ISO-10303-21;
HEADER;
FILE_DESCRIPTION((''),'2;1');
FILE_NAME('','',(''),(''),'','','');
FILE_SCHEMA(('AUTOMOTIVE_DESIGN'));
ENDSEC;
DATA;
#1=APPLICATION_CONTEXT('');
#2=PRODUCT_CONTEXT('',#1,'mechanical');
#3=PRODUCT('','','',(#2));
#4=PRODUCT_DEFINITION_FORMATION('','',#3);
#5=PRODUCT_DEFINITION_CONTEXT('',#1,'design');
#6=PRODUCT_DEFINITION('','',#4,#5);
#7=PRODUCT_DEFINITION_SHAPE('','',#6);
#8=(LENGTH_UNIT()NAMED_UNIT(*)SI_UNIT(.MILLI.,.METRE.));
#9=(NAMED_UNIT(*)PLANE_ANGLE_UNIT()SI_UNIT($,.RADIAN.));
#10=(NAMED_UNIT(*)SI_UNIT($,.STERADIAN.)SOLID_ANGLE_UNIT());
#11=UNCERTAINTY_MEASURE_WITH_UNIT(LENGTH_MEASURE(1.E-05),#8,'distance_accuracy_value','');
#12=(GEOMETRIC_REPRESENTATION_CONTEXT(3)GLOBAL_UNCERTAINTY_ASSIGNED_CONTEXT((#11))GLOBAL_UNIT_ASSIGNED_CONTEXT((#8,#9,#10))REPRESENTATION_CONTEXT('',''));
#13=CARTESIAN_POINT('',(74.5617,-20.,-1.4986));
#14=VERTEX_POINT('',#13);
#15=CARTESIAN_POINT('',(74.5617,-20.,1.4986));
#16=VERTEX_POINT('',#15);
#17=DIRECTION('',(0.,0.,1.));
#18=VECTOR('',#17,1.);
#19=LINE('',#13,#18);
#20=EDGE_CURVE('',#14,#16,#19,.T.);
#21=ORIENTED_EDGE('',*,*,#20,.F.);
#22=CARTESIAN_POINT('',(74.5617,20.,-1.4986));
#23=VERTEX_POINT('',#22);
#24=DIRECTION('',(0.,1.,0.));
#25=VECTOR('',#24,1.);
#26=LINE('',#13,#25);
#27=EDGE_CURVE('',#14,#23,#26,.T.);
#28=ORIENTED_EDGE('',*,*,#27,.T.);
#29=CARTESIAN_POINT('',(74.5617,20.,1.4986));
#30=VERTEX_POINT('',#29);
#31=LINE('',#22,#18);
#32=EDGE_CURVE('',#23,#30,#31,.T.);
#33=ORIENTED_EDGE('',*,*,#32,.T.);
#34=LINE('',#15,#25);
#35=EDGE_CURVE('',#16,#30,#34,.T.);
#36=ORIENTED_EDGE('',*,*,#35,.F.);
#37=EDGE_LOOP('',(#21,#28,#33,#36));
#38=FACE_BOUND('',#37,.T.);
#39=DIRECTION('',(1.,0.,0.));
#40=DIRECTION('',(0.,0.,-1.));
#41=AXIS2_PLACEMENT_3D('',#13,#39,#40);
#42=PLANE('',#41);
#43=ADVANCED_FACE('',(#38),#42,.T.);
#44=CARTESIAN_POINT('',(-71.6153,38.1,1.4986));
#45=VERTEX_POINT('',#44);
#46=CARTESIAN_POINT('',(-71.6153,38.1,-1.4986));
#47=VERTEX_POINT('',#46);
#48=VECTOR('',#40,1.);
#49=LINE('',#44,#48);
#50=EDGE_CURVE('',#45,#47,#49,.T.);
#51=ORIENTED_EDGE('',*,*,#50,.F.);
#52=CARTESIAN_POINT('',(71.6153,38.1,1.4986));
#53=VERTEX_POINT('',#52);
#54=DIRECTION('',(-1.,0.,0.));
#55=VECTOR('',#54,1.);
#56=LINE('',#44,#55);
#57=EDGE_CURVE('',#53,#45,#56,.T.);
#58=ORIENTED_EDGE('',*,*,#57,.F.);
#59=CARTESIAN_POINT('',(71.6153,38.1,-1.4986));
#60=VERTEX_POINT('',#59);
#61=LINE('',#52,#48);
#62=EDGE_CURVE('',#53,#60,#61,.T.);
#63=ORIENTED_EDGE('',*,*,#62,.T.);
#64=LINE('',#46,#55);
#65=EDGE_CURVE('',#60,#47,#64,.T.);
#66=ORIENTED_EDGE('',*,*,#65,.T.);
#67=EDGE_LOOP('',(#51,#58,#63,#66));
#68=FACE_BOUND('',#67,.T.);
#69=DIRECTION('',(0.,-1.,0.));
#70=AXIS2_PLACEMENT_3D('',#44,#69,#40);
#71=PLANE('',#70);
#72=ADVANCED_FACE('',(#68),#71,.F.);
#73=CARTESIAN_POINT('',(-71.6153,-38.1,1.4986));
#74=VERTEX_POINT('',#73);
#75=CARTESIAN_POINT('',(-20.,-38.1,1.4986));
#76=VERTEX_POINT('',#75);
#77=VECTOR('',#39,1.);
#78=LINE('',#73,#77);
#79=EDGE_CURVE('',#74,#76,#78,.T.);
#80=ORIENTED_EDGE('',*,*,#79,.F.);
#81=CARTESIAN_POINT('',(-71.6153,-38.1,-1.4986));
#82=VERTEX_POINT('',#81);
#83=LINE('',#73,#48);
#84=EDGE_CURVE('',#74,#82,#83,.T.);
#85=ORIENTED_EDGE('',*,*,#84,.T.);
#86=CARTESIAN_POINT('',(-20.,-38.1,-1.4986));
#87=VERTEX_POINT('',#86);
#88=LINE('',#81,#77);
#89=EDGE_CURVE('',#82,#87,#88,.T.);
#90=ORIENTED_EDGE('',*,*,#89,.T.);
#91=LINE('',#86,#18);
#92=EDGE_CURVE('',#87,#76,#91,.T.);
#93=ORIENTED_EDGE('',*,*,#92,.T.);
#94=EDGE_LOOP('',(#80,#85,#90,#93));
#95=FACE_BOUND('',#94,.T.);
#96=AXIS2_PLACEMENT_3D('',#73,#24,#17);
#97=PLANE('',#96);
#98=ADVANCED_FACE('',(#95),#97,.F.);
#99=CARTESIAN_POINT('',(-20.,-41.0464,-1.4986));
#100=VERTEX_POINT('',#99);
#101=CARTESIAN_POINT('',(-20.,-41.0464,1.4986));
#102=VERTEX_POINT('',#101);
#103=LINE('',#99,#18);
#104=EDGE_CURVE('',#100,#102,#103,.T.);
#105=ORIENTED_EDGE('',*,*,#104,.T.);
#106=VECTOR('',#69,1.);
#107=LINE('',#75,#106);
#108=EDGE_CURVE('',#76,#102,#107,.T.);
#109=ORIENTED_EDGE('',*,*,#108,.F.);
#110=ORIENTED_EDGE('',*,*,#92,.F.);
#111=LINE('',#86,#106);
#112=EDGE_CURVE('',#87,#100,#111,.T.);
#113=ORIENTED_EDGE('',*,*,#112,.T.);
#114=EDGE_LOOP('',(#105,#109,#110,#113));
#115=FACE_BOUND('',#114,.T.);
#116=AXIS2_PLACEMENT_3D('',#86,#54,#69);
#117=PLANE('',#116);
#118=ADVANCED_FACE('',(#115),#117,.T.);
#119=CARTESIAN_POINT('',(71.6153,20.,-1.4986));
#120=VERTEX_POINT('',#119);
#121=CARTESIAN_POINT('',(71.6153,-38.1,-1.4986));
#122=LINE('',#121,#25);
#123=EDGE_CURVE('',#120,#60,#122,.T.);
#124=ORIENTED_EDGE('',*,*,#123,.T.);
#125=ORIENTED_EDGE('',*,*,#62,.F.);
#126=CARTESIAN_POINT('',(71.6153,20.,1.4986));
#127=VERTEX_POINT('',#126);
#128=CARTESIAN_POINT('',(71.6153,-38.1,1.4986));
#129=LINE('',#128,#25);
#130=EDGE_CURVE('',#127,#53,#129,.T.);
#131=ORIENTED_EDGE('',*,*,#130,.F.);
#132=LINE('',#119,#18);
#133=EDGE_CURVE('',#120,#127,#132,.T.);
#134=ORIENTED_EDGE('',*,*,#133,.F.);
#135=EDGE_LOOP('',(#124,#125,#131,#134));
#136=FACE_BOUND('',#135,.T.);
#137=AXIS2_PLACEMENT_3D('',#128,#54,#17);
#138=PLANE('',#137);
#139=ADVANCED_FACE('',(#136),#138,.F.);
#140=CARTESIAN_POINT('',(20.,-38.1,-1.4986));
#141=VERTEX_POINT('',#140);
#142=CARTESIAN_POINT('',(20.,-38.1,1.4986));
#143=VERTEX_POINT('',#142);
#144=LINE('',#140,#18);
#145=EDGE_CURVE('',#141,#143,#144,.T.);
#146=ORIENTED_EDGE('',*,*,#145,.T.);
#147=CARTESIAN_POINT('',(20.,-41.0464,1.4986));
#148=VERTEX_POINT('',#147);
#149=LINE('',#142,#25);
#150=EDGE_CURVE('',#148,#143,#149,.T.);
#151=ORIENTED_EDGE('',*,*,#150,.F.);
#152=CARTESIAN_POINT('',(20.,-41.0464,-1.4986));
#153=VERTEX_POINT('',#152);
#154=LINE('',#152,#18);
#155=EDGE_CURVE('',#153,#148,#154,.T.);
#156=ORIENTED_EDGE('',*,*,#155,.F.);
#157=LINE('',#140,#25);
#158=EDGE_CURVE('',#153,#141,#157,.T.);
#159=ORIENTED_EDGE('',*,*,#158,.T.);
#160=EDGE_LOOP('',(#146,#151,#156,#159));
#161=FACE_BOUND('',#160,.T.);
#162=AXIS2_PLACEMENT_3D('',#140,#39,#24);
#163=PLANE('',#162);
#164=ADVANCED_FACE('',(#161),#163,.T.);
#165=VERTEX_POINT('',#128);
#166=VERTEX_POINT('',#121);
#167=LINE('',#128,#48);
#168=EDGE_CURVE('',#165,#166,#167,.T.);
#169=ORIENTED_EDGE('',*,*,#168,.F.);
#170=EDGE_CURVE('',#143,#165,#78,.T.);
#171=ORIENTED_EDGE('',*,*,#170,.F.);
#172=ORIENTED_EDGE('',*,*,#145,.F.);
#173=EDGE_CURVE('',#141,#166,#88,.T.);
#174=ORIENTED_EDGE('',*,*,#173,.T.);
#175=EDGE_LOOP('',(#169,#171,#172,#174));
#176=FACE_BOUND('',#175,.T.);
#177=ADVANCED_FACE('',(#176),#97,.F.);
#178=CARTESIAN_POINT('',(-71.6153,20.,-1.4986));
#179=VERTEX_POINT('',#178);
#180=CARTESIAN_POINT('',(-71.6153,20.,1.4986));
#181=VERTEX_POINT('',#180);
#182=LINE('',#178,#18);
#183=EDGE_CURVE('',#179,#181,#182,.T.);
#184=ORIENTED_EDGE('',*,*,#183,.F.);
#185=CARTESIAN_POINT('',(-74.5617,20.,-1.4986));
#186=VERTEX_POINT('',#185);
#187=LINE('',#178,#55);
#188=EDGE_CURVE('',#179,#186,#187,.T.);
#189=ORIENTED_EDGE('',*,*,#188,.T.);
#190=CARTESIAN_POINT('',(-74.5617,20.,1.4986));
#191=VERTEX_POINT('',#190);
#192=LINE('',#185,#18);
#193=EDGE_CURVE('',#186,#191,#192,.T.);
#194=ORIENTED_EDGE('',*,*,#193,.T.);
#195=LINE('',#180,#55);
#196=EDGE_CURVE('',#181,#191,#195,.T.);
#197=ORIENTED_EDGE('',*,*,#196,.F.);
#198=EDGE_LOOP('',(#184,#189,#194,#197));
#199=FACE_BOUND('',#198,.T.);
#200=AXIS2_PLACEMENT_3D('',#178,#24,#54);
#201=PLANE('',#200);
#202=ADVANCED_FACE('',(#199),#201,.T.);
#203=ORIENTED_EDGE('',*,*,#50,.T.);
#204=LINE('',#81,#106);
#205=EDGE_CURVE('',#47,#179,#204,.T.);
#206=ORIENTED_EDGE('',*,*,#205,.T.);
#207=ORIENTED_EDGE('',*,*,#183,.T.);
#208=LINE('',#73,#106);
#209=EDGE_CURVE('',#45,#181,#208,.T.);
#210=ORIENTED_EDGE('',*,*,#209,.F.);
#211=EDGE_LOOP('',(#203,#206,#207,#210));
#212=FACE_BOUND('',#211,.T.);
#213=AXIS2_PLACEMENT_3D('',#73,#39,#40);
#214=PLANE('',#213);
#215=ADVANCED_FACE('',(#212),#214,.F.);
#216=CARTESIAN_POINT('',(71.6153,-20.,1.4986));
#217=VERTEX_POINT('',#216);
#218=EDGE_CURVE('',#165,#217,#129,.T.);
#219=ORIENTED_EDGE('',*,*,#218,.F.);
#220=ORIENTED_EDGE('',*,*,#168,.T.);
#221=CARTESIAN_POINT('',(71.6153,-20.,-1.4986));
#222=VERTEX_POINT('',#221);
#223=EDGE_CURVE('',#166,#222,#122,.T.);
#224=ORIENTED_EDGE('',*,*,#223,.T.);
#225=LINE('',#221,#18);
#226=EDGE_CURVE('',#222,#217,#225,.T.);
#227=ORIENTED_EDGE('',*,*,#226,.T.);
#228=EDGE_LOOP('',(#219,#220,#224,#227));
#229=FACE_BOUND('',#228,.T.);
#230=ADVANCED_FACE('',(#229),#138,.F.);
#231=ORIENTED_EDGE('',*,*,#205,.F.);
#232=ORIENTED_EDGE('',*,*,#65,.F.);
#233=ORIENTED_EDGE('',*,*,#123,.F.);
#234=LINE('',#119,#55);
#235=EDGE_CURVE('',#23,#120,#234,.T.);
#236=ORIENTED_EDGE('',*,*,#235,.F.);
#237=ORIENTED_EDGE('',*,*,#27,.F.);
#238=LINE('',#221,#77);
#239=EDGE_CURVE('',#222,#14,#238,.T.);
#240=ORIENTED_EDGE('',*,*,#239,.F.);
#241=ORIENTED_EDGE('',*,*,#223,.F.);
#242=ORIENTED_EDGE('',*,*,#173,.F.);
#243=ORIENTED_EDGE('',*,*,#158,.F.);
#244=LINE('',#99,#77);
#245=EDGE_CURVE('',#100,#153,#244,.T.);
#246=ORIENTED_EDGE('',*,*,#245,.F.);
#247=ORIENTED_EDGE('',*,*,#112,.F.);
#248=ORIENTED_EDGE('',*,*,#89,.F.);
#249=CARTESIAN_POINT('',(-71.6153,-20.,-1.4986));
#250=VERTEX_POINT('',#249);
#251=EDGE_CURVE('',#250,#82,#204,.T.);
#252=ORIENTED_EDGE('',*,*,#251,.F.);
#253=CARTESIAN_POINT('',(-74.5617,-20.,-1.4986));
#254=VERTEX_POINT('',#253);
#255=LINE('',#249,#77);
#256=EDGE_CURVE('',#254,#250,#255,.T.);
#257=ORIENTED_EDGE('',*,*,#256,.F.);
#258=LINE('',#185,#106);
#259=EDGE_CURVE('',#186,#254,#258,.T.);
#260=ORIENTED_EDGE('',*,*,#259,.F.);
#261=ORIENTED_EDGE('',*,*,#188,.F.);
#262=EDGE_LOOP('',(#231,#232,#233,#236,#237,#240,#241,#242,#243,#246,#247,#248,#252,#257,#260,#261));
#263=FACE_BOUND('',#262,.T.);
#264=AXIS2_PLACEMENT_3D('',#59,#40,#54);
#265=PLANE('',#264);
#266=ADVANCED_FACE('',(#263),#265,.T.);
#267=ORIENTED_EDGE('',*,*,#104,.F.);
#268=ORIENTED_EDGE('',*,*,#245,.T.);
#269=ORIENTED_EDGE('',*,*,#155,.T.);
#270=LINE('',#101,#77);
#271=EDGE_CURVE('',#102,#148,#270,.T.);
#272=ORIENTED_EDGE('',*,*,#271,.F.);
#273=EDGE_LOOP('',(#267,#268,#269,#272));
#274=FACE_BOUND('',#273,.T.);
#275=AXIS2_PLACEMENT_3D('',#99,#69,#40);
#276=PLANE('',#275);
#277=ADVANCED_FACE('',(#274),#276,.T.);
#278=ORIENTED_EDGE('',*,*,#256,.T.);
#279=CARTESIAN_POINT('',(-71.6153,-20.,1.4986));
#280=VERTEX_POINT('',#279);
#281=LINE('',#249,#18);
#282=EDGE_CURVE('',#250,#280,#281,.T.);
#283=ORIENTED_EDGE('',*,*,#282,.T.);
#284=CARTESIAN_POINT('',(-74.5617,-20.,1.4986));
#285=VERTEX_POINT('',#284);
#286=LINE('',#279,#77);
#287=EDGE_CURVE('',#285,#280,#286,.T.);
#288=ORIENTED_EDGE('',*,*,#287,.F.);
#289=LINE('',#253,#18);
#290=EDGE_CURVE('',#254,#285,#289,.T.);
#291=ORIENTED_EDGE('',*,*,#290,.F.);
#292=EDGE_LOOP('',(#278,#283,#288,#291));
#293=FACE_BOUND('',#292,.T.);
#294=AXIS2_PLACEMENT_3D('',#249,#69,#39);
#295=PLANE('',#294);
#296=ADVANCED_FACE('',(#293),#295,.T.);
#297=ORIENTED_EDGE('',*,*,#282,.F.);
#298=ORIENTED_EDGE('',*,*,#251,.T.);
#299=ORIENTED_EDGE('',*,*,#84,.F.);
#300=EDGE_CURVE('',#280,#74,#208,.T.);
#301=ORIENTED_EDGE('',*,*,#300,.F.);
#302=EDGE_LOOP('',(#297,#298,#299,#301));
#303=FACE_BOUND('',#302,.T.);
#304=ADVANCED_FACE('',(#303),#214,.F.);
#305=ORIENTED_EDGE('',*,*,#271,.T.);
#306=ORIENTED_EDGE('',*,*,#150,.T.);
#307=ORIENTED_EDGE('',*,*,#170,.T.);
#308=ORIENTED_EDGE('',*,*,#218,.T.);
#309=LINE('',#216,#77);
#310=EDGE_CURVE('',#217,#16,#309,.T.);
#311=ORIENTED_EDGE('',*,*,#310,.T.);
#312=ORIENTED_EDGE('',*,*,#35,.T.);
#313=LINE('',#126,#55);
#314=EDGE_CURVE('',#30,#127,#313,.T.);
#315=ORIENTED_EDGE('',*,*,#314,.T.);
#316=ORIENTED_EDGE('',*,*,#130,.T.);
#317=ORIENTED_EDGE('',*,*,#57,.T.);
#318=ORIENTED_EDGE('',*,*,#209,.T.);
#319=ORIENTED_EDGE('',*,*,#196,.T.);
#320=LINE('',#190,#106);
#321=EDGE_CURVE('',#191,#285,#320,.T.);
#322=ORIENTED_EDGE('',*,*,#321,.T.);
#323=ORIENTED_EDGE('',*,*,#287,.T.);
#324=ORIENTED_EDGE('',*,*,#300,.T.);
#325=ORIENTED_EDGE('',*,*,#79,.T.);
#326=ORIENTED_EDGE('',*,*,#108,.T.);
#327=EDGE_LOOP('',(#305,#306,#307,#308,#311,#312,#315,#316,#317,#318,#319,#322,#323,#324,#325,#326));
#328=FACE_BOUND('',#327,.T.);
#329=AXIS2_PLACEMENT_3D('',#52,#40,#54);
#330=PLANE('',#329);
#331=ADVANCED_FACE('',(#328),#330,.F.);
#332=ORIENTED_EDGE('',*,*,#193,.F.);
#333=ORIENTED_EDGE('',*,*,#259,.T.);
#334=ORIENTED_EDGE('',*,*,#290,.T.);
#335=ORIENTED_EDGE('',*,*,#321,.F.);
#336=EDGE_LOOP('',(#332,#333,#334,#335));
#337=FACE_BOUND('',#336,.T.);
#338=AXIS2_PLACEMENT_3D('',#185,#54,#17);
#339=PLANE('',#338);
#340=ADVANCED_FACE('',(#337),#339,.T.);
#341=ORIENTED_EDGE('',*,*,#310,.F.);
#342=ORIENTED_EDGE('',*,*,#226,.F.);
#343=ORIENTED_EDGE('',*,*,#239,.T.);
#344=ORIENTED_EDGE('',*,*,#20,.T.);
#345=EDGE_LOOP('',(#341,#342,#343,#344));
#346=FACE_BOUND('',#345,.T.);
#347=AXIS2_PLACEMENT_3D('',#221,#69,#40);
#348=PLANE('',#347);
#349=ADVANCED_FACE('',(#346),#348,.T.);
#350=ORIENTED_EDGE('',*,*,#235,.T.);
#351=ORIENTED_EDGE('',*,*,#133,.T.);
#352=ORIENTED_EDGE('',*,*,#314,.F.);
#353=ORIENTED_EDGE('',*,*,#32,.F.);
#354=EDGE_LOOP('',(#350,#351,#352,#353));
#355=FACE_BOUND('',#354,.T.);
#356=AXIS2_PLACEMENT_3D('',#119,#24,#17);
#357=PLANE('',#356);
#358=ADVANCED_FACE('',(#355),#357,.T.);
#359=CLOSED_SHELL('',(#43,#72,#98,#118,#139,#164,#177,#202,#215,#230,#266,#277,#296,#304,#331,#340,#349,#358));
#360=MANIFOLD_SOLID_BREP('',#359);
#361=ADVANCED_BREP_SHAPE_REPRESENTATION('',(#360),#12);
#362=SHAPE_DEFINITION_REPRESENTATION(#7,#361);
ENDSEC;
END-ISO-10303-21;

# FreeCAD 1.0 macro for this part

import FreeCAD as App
import Part
import Sketcher
from FreeCAD import Vector
Q = App.Units.Quantity


def add_polygon(sketch, points):
    """Adds a closed chain of lines whose ends are joined by coincident constraints."""
    first, n = sketch.GeometryCount, len(points)
    for a, b in zip(points, points[1:] + points[:1]):
        sketch.addGeometry(Part.LineSegment(App.Vector(*a, 0), App.Vector(*b, 0)), False)
    for i in range(n):
        sketch.addConstraint(Sketcher.Constraint("Coincident", first + i, 2, first + (i + 1) % n, 1))

doc = App.newDocument("Part")
body = doc.addObject("PartDesign::Body", "Body")

# Sketch on XY plane
sketch1 = body.newObject("Sketcher::SketchObject", "Sketch")
sketch1.AttachmentSupport = (doc.getObject("XY_Plane"), [""])
sketch1.MapMode = "FlatFace"
add_polygon(sketch1, [(-72, 38), (-72, -38), (72, -38), (72, 38)])  # lines 0-3
sketch1.addConstraint([
    Sketcher.Constraint("Vertical", 0),
    Sketcher.Constraint("Horizontal", 1),
    Sketcher.Constraint("Vertical", 2),
    Sketcher.Constraint("Horizontal", 3),
    Sketcher.Constraint("Symmetric", 0, 2, 2, 2, -1, 1),
    Sketcher.Constraint("DistanceY", 0, 2, 0, 1, Q("3 in")),
    Sketcher.Constraint("DistanceX", 1, 1, 1, 2, Q("5.639 in")),
])
pad1 = body.newObject("PartDesign::Pad", "Pad")
pad1.Profile = sketch1
pad1.Length = Q("0.118 in")
pad1.Midplane = True

# Sketch on XY plane
sketch2 = body.newObject("Sketcher::SketchObject", "Sketch001")
sketch2.AttachmentSupport = (doc.getObject("XY_Plane"), [""])
sketch2.MapMode = "FlatFace"
sketch2.AttachmentOffset = App.Placement(Vector(0, 0, 0.059 * 25.4), App.Rotation())
add_polygon(sketch2, [(-74.6, 20), (-74.6, -20), (-71.6, -20), (-71.6, 20)])  # lines 0-3
add_polygon(sketch2, [(-20, -38.1), (-20, -41), (20, -41), (20, -38.1)])  # lines 4-7
add_polygon(sketch2, [(71.6, 20), (71.6, -20), (74.6, -20), (74.6, 20)])  # lines 8-11
sketch2.addConstraint([
    Sketcher.Constraint("Vertical", 0),
    Sketcher.Constraint("Horizontal", 1),
    Sketcher.Constraint("Vertical", 2),
    Sketcher.Constraint("Horizontal", 3),
    Sketcher.Constraint("Vertical", 4),
    Sketcher.Constraint("Horizontal", 5),
    Sketcher.Constraint("Vertical", 6),
    Sketcher.Constraint("Horizontal", 7),
    Sketcher.Constraint("Vertical", 8),
    Sketcher.Constraint("Horizontal", 9),
    Sketcher.Constraint("Vertical", 10),
    Sketcher.Constraint("Horizontal", 11),
    Sketcher.Constraint("Symmetric", 2, 2, 8, 2, -1, 1),
    Sketcher.Constraint("Symmetric", 0, 2, 10, 2, -1, 1),
    Sketcher.Constraint("Horizontal", 1, 2, 8, 2),
    Sketcher.Constraint("Equal", 7, 0),
    Sketcher.Constraint("Equal", 11, 4),
    Sketcher.Constraint("DistanceY", 6, 2, -1, 1, Q("1.5 in")),
    Sketcher.Constraint("DistanceX", 1, 1, 1, 2, Q("0.116 in")),
    Sketcher.Constraint("DistanceX", 1, 2, 8, 2, Q("5.639 in")),
    Sketcher.Constraint("DistanceX", 5, 1, 5, 2, Q("40 mm")),
    Sketcher.Constraint("DistanceX", 4, 2, -1, 1, Q("20 mm")),
])
pad2 = body.newObject("PartDesign::Pad", "Pad001")
pad2.Profile = sketch2
pad2.Type = "UpToLast"
pad2.Reversed = True

doc.recompute()
